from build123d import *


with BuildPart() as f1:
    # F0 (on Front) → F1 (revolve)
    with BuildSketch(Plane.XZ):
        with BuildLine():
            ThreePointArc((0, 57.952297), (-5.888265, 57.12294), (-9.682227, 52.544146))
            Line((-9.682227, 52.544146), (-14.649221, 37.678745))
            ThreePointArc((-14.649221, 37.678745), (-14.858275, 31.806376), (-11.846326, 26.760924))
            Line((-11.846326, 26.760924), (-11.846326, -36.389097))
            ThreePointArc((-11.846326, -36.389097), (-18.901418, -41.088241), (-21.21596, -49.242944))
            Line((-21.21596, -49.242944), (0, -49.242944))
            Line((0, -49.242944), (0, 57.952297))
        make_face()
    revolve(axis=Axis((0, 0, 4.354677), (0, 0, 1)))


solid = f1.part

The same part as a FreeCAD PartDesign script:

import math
import FreeCAD as App
import Part
import Sketcher
from FreeCAD import Vector

doc = App.newDocument("Part")
body = doc.addObject("PartDesign::Body", "Body")

sketch1 = body.newObject("Sketcher::SketchObject", "Sketch")
sketch1.AttachmentSupport = (doc.getObject("XZ_Plane"), [""])
sketch1.MapMode = "FlatFace"
sketch1.addGeometry([
    Part.ArcOfCircle(Part.Circle(Vector(-1.873302, 49.934941, 0), Vector(0, 0, 1), 8.233302), math.radians(76.848456), math.radians(161.523919)),
    Part.LineSegment(Vector(-9.682227, 52.544146, 0), Vector(-14.649221, 37.678745, 0)),
    Part.ArcOfCircle(Part.Circle(Vector(-4.80134, 34.388259, 0), Vector(0, 0, 1), 10.383066), math.radians(161.523908), math.radians(227.272892)),
    Part.LineSegment(Vector(-11.846326, 26.760924, 0), Vector(-11.846326, -36.389097, 0)),
    Part.ArcOfCircle(Part.Circle(Vector(-9.003084, -48.303495, 0), Vector(0, 0, 1), 12.248955), math.radians(103.421986), math.radians(184.398692)),
    Part.LineSegment(Vector(-21.21596, -49.242944, 0), Vector(0, -49.242944, 0)),
    Part.LineSegment(Vector(0, -49.242944, 0), Vector(0, 57.952297, 0)),
], False)
sketch1.addConstraint([
    Sketcher.Constraint("Tangent", 0, 2, 1, 1),
    Sketcher.Constraint("Tangent", 1, 2, 2, 1),
    Sketcher.Constraint("Coincident", 2, 2, 3, 1),
    Sketcher.Constraint("Coincident", 3, 2, 4, 1),
    Sketcher.Constraint("Coincident", 4, 2, 5, 1),
    Sketcher.Constraint("Coincident", 5, 2, 6, 1),
    Sketcher.Constraint("Coincident", 6, 2, 0, 1),
    Sketcher.Constraint("Vertical", 3),
    Sketcher.Constraint("Horizontal", 5),
    Sketcher.Constraint("Vertical", 6),
    Sketcher.Constraint("PointOnObject", 5, 2, -2),
    Sketcher.Constraint("Radius", 0, 8.233302),
    Sketcher.Constraint("Radius", 2, 10.383066),
    Sketcher.Constraint("Radius", 4, 12.248955),
    Sketcher.Constraint("DistanceX", 5, 1, 5, 2, 21.21596),
    Sketcher.Constraint("DistanceY", 3, 2, 3, 1, 63.150021),
    Sketcher.Constraint("DistanceY", 6, 1, 6, 2, 107.195241),
    Sketcher.Constraint("DistanceX", 0, 3, -1, 1, 1.873302),
    Sketcher.Constraint("DistanceY", 1, 2, 0, 2, 14.865401),
    Sketcher.Constraint("DistanceX", 2, 2, 0, 2, 2.164099),
    Sketcher.Constraint("DistanceY", -1, 1, 0, 3, 49.934941),
    Sketcher.Constraint("DistanceX", 2, 3, -1, 1, 4.80134),
])
revolution = body.newObject("PartDesign::Revolution", "Revolution")
revolution.Profile = sketch1
revolution.ReferenceAxis = (sketch1, ["V_Axis"])
revolution.Angle = 360

doc.recompute()
